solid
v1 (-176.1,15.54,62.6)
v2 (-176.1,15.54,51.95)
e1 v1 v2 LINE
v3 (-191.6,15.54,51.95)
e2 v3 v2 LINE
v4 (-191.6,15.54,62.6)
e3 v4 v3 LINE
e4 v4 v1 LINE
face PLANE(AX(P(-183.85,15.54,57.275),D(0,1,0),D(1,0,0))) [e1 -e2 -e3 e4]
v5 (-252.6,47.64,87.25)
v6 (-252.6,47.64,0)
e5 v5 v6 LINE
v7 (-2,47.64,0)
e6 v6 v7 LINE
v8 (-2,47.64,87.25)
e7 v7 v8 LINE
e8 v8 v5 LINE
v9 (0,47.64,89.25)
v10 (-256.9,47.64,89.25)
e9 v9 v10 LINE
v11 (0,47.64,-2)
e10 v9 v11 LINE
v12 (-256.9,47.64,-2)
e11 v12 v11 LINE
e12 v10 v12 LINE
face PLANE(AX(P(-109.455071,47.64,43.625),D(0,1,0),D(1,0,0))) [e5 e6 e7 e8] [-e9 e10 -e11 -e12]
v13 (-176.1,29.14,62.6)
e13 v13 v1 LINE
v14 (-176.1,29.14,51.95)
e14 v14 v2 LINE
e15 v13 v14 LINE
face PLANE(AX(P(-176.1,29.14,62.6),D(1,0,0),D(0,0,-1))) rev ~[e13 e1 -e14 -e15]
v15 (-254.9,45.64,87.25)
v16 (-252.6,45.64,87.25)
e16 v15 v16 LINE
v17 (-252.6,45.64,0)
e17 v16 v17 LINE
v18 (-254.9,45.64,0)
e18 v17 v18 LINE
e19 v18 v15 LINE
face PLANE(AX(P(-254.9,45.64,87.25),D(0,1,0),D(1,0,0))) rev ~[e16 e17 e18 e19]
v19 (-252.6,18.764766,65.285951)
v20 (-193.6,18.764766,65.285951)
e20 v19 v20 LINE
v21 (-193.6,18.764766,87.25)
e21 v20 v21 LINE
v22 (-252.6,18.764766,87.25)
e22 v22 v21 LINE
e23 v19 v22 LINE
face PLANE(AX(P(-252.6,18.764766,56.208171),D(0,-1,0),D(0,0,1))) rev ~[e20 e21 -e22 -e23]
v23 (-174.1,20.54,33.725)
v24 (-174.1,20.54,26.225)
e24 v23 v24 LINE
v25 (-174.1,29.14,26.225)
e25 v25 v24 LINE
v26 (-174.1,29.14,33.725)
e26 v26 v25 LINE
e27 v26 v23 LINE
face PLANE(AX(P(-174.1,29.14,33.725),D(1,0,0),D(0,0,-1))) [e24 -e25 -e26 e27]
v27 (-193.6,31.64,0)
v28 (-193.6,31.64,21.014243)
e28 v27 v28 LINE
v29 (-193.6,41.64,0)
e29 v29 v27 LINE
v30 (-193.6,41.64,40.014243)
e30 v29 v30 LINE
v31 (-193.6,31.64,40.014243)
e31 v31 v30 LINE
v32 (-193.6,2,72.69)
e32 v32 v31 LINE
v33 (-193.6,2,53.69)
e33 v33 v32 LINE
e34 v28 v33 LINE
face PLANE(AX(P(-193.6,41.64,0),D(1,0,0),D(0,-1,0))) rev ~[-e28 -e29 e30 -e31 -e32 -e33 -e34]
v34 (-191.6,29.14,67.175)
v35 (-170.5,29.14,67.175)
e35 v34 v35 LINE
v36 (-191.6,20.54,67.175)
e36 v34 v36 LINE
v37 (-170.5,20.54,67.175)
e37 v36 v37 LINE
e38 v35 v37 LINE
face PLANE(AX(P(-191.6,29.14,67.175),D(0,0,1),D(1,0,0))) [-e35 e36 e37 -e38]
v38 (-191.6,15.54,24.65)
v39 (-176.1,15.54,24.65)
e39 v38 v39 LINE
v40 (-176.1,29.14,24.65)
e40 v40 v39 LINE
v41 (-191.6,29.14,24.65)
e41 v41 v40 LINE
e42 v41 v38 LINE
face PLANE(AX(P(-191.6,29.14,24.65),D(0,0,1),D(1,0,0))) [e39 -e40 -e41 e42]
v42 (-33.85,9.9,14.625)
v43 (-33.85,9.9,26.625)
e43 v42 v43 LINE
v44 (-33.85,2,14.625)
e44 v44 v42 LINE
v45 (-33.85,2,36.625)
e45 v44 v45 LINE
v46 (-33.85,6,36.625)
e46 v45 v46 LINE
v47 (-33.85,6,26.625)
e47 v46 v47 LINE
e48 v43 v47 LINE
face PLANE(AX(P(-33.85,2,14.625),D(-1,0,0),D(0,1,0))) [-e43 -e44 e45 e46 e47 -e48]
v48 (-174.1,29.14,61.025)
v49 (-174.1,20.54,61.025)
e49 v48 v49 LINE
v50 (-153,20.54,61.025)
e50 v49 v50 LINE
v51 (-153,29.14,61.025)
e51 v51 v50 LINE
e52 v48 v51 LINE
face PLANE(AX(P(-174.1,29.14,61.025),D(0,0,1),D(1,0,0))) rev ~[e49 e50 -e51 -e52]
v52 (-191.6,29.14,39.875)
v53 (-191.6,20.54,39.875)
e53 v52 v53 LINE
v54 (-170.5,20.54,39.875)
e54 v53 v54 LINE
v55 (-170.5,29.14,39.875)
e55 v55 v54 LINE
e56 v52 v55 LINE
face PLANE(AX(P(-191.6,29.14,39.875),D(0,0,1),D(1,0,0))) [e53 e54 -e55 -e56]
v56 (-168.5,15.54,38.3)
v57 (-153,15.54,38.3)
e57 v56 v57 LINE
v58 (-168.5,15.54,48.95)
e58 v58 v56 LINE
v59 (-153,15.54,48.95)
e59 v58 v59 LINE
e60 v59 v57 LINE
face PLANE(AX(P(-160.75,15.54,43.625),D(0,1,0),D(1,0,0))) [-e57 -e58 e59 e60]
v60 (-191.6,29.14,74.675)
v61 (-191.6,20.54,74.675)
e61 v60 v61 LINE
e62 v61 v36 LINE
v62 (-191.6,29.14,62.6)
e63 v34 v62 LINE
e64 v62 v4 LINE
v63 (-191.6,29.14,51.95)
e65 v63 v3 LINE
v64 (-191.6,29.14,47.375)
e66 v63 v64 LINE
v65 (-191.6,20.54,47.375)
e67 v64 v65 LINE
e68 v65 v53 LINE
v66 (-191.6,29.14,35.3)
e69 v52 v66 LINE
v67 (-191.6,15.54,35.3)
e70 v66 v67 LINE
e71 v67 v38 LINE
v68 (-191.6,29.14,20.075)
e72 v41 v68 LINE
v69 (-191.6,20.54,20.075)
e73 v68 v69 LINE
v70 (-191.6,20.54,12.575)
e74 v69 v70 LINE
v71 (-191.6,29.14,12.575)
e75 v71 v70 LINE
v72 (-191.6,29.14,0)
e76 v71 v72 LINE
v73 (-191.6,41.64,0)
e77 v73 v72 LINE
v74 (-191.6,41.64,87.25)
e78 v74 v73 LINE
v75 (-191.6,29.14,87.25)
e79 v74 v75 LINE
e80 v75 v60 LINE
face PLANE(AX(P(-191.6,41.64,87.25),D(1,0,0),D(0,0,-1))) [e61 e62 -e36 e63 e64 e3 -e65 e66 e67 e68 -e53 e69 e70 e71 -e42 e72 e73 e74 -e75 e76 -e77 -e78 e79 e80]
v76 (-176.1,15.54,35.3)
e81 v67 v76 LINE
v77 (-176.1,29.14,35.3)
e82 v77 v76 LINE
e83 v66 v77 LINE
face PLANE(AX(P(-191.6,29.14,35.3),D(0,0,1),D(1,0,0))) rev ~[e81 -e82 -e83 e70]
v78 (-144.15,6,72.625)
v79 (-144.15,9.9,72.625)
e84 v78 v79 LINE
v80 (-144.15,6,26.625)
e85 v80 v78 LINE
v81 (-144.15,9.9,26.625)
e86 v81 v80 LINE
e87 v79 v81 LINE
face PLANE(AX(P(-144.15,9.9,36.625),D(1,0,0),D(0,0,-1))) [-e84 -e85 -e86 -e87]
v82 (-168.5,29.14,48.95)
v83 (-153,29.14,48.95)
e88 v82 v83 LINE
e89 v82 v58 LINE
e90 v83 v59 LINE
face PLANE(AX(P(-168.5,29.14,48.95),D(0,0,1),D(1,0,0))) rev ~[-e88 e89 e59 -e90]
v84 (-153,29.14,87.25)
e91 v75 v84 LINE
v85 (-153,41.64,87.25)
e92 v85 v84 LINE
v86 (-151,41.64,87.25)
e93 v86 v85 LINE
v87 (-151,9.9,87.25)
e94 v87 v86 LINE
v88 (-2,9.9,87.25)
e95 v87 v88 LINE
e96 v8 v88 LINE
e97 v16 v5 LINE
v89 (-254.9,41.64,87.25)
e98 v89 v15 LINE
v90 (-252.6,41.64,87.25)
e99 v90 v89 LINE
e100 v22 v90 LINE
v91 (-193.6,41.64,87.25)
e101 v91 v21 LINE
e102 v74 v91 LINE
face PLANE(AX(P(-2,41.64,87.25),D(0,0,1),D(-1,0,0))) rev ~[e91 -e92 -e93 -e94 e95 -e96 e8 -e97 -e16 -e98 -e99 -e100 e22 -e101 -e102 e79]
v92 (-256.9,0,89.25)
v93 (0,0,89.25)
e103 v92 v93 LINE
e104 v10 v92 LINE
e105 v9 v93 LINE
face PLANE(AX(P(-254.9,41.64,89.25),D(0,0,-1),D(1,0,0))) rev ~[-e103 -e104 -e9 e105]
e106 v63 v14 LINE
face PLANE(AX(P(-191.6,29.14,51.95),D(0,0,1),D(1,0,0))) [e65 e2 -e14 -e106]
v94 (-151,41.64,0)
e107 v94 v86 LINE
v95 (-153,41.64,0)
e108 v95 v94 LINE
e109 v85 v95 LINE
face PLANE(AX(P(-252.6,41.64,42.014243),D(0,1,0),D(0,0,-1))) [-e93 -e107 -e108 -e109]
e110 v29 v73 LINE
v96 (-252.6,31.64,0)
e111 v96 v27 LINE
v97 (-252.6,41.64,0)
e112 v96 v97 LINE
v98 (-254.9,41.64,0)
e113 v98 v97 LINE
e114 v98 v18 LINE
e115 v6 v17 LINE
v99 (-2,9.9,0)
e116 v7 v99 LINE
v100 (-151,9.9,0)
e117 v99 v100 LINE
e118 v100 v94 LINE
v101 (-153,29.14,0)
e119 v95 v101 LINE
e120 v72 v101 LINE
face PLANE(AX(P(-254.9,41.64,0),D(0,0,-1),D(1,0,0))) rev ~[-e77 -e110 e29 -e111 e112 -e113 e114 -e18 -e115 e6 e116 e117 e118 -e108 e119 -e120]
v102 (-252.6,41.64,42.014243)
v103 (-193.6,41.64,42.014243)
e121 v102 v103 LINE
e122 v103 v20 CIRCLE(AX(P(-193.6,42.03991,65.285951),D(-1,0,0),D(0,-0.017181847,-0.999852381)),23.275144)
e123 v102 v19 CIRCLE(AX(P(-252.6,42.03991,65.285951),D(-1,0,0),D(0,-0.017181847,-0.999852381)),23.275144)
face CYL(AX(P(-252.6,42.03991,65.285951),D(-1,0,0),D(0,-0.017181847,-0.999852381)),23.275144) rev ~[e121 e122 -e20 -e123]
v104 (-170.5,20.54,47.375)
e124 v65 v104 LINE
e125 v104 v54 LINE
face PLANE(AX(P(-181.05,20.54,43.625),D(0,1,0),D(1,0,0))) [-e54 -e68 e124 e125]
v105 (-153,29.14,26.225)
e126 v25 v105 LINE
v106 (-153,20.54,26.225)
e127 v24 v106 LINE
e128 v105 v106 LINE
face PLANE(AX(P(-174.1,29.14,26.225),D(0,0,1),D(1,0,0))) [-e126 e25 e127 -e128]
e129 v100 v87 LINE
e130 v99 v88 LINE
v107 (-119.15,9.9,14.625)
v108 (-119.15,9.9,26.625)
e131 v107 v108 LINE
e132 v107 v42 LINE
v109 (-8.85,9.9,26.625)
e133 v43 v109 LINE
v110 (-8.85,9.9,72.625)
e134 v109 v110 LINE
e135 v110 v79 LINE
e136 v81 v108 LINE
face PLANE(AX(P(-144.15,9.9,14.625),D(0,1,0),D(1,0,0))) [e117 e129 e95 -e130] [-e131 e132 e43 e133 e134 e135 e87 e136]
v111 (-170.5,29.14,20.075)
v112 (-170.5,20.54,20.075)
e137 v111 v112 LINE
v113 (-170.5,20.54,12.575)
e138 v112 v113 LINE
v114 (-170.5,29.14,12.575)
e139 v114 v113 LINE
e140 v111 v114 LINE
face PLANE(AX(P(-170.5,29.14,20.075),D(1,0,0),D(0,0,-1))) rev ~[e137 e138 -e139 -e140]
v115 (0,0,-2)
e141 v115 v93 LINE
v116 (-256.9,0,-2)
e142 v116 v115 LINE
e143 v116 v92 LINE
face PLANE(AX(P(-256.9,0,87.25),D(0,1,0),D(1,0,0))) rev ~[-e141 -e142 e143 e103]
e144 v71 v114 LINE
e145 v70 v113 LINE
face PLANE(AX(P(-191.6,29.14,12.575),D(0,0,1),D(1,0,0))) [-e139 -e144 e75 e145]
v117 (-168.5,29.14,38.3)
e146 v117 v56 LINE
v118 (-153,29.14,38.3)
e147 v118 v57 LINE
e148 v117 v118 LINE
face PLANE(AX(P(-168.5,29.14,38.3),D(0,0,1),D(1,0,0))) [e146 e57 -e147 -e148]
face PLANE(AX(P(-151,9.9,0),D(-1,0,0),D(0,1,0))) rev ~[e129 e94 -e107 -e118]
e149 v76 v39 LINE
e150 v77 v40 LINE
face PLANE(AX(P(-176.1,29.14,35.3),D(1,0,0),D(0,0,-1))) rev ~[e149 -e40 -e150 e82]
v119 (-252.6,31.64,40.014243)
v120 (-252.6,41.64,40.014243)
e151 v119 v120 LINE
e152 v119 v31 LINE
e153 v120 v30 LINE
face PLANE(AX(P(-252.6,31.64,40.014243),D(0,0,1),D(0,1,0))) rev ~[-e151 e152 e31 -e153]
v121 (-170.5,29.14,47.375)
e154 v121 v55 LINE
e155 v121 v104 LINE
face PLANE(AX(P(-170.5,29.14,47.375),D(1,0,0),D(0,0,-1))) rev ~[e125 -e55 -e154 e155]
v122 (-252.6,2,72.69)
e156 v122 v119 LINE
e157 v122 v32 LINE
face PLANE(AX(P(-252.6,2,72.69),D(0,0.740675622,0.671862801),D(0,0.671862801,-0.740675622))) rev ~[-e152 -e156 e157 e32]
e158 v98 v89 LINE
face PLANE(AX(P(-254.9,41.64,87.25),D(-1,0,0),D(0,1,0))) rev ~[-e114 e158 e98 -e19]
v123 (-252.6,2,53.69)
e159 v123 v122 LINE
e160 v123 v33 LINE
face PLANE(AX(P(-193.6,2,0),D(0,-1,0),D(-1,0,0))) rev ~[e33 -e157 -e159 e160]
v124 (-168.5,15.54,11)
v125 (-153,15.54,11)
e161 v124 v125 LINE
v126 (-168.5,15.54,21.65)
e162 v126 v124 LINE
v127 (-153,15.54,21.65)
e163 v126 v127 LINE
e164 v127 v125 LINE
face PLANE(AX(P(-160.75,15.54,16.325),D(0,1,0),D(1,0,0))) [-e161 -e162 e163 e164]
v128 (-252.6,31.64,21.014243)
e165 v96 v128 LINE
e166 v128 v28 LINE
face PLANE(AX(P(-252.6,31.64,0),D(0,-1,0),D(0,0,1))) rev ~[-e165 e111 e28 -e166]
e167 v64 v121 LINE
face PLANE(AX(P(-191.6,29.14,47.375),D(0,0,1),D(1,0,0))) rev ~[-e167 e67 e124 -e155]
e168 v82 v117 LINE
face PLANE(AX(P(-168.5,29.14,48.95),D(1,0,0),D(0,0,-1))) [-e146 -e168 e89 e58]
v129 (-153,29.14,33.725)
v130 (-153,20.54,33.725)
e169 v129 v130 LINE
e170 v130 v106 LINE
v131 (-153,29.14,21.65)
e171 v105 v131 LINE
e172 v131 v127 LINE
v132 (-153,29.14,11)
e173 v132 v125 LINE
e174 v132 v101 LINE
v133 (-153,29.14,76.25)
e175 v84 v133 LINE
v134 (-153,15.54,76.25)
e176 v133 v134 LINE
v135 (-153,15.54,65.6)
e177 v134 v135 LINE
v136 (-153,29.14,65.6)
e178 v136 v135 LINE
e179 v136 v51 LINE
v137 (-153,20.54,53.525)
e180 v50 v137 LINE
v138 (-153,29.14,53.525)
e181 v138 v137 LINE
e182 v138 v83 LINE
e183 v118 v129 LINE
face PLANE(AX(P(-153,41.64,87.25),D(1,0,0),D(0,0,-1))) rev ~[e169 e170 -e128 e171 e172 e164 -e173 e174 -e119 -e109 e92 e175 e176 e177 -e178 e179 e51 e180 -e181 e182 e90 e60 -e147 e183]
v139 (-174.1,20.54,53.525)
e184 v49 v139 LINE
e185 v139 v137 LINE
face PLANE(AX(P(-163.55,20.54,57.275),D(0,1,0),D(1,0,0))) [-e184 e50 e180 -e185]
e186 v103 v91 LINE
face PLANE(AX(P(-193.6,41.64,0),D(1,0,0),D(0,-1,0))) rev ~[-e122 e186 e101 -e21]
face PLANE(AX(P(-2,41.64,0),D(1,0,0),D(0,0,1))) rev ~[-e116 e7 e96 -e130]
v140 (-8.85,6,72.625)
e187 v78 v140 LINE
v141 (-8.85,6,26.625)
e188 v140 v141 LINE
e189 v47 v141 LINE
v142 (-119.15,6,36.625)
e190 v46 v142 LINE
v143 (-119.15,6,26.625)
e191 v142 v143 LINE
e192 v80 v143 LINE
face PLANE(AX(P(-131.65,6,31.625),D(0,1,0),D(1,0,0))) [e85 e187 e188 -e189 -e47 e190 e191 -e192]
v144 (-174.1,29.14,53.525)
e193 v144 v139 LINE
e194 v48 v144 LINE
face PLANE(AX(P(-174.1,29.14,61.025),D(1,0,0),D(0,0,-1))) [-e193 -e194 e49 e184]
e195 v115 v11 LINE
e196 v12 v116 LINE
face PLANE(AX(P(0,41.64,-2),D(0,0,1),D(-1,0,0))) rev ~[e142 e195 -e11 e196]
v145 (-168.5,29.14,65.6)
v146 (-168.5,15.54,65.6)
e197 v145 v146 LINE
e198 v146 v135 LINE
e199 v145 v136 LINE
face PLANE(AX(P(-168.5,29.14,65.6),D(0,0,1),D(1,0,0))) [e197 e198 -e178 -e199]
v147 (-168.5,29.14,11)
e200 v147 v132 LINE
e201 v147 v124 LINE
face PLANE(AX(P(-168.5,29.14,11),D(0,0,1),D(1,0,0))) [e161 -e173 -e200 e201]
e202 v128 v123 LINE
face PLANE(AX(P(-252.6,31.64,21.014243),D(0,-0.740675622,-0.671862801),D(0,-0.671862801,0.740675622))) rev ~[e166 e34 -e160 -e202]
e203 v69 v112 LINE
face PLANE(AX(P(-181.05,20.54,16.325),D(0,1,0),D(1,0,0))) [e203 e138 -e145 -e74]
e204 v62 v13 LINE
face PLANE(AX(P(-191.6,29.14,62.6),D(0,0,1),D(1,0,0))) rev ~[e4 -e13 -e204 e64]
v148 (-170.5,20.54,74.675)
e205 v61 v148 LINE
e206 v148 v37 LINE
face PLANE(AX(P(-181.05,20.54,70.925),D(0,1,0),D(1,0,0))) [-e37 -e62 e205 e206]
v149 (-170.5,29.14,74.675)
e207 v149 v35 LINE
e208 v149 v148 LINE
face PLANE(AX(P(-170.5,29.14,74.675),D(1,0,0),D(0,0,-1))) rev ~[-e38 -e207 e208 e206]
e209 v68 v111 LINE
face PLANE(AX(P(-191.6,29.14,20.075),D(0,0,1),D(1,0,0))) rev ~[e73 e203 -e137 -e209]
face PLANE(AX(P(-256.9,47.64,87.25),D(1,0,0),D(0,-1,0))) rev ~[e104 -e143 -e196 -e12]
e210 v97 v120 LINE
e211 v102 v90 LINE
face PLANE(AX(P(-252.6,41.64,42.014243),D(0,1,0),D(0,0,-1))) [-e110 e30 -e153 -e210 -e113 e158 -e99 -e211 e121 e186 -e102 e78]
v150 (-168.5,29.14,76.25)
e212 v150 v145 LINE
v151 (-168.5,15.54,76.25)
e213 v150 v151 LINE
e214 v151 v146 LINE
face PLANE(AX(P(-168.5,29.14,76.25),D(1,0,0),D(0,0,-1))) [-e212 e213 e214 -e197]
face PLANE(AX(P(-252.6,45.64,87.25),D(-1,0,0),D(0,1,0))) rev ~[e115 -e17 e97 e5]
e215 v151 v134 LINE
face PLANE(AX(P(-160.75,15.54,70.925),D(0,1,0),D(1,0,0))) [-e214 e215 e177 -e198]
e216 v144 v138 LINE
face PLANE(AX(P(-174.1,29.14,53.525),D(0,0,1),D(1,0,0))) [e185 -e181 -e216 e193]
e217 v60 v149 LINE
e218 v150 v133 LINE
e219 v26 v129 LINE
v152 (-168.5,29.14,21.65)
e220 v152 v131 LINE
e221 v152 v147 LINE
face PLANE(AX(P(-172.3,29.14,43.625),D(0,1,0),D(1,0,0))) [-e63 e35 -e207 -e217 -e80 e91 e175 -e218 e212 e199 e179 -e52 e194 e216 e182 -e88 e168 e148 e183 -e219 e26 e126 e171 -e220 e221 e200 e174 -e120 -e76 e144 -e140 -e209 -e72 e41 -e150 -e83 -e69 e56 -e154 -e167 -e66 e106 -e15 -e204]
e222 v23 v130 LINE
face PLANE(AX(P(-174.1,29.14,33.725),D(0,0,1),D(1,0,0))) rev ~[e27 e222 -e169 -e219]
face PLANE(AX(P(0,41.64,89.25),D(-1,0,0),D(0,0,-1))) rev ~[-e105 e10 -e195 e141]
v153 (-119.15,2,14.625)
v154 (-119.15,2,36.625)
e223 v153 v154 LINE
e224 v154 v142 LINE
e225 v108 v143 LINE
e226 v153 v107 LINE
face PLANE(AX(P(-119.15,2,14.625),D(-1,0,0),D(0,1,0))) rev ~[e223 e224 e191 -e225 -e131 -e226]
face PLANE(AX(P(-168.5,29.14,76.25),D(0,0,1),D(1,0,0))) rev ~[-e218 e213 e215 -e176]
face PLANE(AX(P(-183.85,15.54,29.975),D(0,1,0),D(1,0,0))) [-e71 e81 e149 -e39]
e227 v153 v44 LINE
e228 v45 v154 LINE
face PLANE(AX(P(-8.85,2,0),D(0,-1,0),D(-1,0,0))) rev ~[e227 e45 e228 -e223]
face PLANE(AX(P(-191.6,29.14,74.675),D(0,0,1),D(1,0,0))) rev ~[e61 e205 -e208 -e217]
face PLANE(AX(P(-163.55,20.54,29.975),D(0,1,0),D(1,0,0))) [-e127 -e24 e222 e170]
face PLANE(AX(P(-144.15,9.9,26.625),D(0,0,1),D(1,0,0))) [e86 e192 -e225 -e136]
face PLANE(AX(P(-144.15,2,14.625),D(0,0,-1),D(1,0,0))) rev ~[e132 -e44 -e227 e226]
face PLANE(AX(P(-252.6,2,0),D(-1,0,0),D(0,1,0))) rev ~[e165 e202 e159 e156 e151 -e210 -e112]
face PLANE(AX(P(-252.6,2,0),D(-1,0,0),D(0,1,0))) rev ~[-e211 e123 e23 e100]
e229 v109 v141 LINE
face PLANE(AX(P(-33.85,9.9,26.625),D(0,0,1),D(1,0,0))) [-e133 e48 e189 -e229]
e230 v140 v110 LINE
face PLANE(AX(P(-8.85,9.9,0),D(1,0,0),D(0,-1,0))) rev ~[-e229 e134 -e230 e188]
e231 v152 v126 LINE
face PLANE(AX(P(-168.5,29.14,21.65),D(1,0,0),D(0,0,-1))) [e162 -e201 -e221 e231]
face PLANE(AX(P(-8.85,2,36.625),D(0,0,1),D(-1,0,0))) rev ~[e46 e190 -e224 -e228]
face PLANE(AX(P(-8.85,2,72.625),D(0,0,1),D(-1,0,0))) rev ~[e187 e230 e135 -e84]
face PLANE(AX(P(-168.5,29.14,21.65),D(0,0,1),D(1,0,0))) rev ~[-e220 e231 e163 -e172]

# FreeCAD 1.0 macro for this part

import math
import FreeCAD as App
import Part
import Sketcher
from FreeCAD import Vector

doc = App.newDocument("Part")
body = doc.addObject("PartDesign::Body", "Body")

# Sketch on XY plane
sketch1 = doc.addObject("Sketcher::SketchObject", "Sketch")
body.addObject(sketch1)
sketch1.AttachmentSupport = (doc.XY_Plane, [""])
sketch1.MapMode = "FlatFace"
sketch1.addGeometry([
    Part.LineSegment(Vector(-256.9, 47.6, 0), Vector(-256.9, 0, 0)),  # 0
    Part.LineSegment(Vector(-256.9, 0, 0), Vector(0, 0, 0)),  # 1
    Part.LineSegment(Vector(0, 0, 0), Vector(0, 41.6, 0)),  # 2
    Part.LineSegment(Vector(0, 41.6, 0), Vector(-254.9, 41.6, 0)),  # 3
    Part.LineSegment(Vector(-254.9, 41.6, 0), Vector(-254.9, 45.6, 0)),  # 4
    Part.LineSegment(Vector(-254.9, 45.6, 0), Vector(-252.6, 45.6, 0)),  # 5
    Part.LineSegment(Vector(-252.6, 45.6, 0), Vector(-252.6, 47.6, 0)),  # 6
    Part.LineSegment(Vector(-252.6, 47.6, 0), Vector(-256.9, 47.6, 0)),  # 7
], False)
sketch1.addConstraint([
    Sketcher.Constraint("Coincident", 0, 2, 1, 1),
    Sketcher.Constraint("Coincident", 1, 2, 2, 1),
    Sketcher.Constraint("Coincident", 2, 2, 3, 1),
    Sketcher.Constraint("Coincident", 3, 2, 4, 1),
    Sketcher.Constraint("Coincident", 4, 2, 5, 1),
    Sketcher.Constraint("Coincident", 5, 2, 6, 1),
    Sketcher.Constraint("Coincident", 6, 2, 7, 1),
    Sketcher.Constraint("Coincident", 7, 2, 0, 1),
    Sketcher.Constraint("Vertical", 0),
    Sketcher.Constraint("Horizontal", 1),
    Sketcher.Constraint("Vertical", 2),
    Sketcher.Constraint("Horizontal", 3),
    Sketcher.Constraint("Vertical", 4),
    Sketcher.Constraint("Horizontal", 5),
    Sketcher.Constraint("Vertical", 6),
    Sketcher.Constraint("Horizontal", 7),
    Sketcher.Constraint("Coincident", 1, 2, -1, 1),
    Sketcher.Constraint("DistanceY", 4, 1, 4, 2, 4.0),
    Sketcher.Constraint("DistanceY", 6, 1, 6, 2, 2.0),
    Sketcher.Constraint("DistanceX", 1, 1, 1, 2, 256.9),
    Sketcher.Constraint("DistanceX", 3, 2, 3, 1, 254.9),
    Sketcher.Constraint("DistanceX", 5, 1, 5, 2, 2.3),
    Sketcher.Constraint("DistanceY", 0, 2, 0, 1, 47.64),
])
pad1 = doc.addObject("PartDesign::Pad", "Pad")
body.addObject(pad1)
pad1.Profile = sketch1
pad1.Length = 2
pad1.Reversed = True

# Sketch on XY plane
sketch2 = doc.addObject("Sketcher::SketchObject", "Sketch001")
body.addObject(sketch2)
sketch2.AttachmentSupport = (doc.XY_Plane, [""])
sketch2.MapMode = "FlatFace"
sketch2.addGeometry([
    Part.LineSegment(Vector(-256.9, 47.6, 0), Vector(-256.9, 0, 0)),  # 0
    Part.LineSegment(Vector(-256.9, 0, 0), Vector(0, 0, 0)),  # 1
    Part.LineSegment(Vector(0, 0, 0), Vector(0, 41.6, 0)),  # 2
    Part.LineSegment(Vector(0, 41.6, 0), Vector(-2, 41.6, 0)),  # 3
    Part.LineSegment(Vector(-2, 41.6, 0), Vector(-2, 9.9, 0)),  # 4
    Part.LineSegment(Vector(-2, 9.9, 0), Vector(-8.8, 9.9, 0)),  # 5
    Part.LineSegment(Vector(-8.8, 9.9, 0), Vector(-8.8, 2, 0)),  # 6
    Part.LineSegment(Vector(-8.8, 2, 0), Vector(-144.2, 2, 0)),  # 7
    Part.LineSegment(Vector(-144.2, 2, 0), Vector(-144.2, 9.9, 0)),  # 8
    Part.LineSegment(Vector(-144.2, 9.9, 0), Vector(-151, 9.9, 0)),  # 9
    Part.LineSegment(Vector(-151, 9.9, 0), Vector(-151, 41.6, 0)),  # 10
    Part.LineSegment(Vector(-151, 41.6, 0), Vector(-193.6, 41.6, 0)),  # 11
    Part.LineSegment(Vector(-193.6, 41.6, 0), Vector(-193.6, 2, 0)),  # 12
    Part.LineSegment(Vector(-193.6, 2, 0), Vector(-252.6, 2, 0)),  # 13
    Part.LineSegment(Vector(-252.6, 2, 0), Vector(-252.6, 41.6, 0)),  # 14
    Part.LineSegment(Vector(-252.6, 41.6, 0), Vector(-254.9, 41.6, 0)),  # 15
    Part.LineSegment(Vector(-254.9, 41.6, 0), Vector(-254.9, 45.6, 0)),  # 16
    Part.LineSegment(Vector(-254.9, 45.6, 0), Vector(-252.6, 45.6, 0)),  # 17
    Part.LineSegment(Vector(-252.6, 45.6, 0), Vector(-252.6, 47.6, 0)),  # 18
    Part.LineSegment(Vector(-252.6, 47.6, 0), Vector(-256.9, 47.6, 0)),  # 19
], False)
sketch2.addConstraint([
    Sketcher.Constraint("Coincident", 0, 2, 1, 1),
    Sketcher.Constraint("Coincident", 1, 2, 2, 1),
    Sketcher.Constraint("Coincident", 2, 2, 3, 1),
    Sketcher.Constraint("Coincident", 3, 2, 4, 1),
    Sketcher.Constraint("Coincident", 4, 2, 5, 1),
    Sketcher.Constraint("Coincident", 5, 2, 6, 1),
    Sketcher.Constraint("Coincident", 6, 2, 7, 1),
    Sketcher.Constraint("Coincident", 7, 2, 8, 1),
    Sketcher.Constraint("Coincident", 8, 2, 9, 1),
    Sketcher.Constraint("Coincident", 9, 2, 10, 1),
    Sketcher.Constraint("Coincident", 10, 2, 11, 1),
    Sketcher.Constraint("Coincident", 11, 2, 12, 1),
    Sketcher.Constraint("Coincident", 12, 2, 13, 1),
    Sketcher.Constraint("Coincident", 13, 2, 14, 1),
    Sketcher.Constraint("Coincident", 14, 2, 15, 1),
    Sketcher.Constraint("Coincident", 15, 2, 16, 1),
    Sketcher.Constraint("Coincident", 16, 2, 17, 1),
    Sketcher.Constraint("Coincident", 17, 2, 18, 1),
    Sketcher.Constraint("Coincident", 18, 2, 19, 1),
    Sketcher.Constraint("Coincident", 19, 2, 0, 1),
    Sketcher.Constraint("Vertical", 0),
    Sketcher.Constraint("Horizontal", 1),
    Sketcher.Constraint("Vertical", 2),
    Sketcher.Constraint("Horizontal", 3),
    Sketcher.Constraint("Vertical", 4),
    Sketcher.Constraint("Horizontal", 5),
    Sketcher.Constraint("Vertical", 6),
    Sketcher.Constraint("Horizontal", 7),
    Sketcher.Constraint("Vertical", 8),
    Sketcher.Constraint("Horizontal", 9),
    Sketcher.Constraint("Vertical", 10),
    Sketcher.Constraint("Horizontal", 11),
    Sketcher.Constraint("Vertical", 12),
    Sketcher.Constraint("Horizontal", 13),
    Sketcher.Constraint("Vertical", 14),
    Sketcher.Constraint("Horizontal", 15),
    Sketcher.Constraint("Vertical", 16),
    Sketcher.Constraint("Horizontal", 17),
    Sketcher.Constraint("Vertical", 18),
    Sketcher.Constraint("Horizontal", 19),
    Sketcher.Constraint("Coincident", 1, 2, -1, 1),
    Sketcher.Constraint("Horizontal", 5, 2, 8, 2),
    Sketcher.Constraint("Horizontal", 3, 2, 10, 2),
    Sketcher.Constraint("Horizontal", 7, 2, 12, 2),
    Sketcher.Constraint("Horizontal", 11, 2, 14, 2),
    Sketcher.Constraint("Vertical", 14, 2, 17, 2),
    Sketcher.Constraint("Equal", 5, 9),
    Sketcher.Constraint("Equal", 3, 18),
    Sketcher.Constraint("DistanceX", 3, 2, 3, 1, 2.0),
    Sketcher.Constraint("DistanceX", 13, 2, 13, 1, 59.0),
    Sketcher.Constraint("DistanceY", 16, 1, 16, 2, 4.0),
    Sketcher.Constraint("DistanceX", 1, 1, 1, 2, 256.9),
    Sketcher.Constraint("DistanceX", 7, 2, 7, 1, 135.3),
    Sketcher.Constraint("DistanceX", 11, 2, 11, 1, 42.6),
    Sketcher.Constraint("DistanceX", 15, 2, 15, 1, 2.3),
    Sketcher.Constraint("DistanceX", 19, 2, 19, 1, 4.3),
    Sketcher.Constraint("DistanceY", 6, 2, 6, 1, 7.9),
    Sketcher.Constraint("DistanceY", -1, 1, 6, 2, 2.0),
    Sketcher.Constraint("DistanceY", 0, 2, 0, 1, 47.64),
])
pad2 = doc.addObject("PartDesign::Pad", "Pad001")
body.addObject(pad2)
pad2.Profile = sketch2
pad2.Length = 87.25

# Sketch on XY plane
sketch3 = doc.addObject("Sketcher::SketchObject", "Sketch002")
body.addObject(sketch3)
sketch3.AttachmentSupport = (doc.XY_Plane, [""])
sketch3.MapMode = "FlatFace"
sketch3.AttachmentOffset = App.Placement(Vector(0, 0, 87.25), App.Rotation())
sketch3.addGeometry([
    Part.LineSegment(Vector(-256.9, 47.6, 0), Vector(-256.9, 0, 0)),  # 0
    Part.LineSegment(Vector(-256.9, 0, 0), Vector(0, 0, 0)),  # 1
    Part.LineSegment(Vector(0, 0, 0), Vector(0, 41.6, 0)),  # 2
    Part.LineSegment(Vector(0, 41.6, 0), Vector(-254.9, 41.6, 0)),  # 3
    Part.LineSegment(Vector(-254.9, 41.6, 0), Vector(-254.9, 45.6, 0)),  # 4
    Part.LineSegment(Vector(-254.9, 45.6, 0), Vector(-252.6, 45.6, 0)),  # 5
    Part.LineSegment(Vector(-252.6, 45.6, 0), Vector(-252.6, 47.6, 0)),  # 6
    Part.LineSegment(Vector(-252.6, 47.6, 0), Vector(-256.9, 47.6, 0)),  # 7
], False)
sketch3.addConstraint([
    Sketcher.Constraint("Coincident", 0, 2, 1, 1),
    Sketcher.Constraint("Coincident", 1, 2, 2, 1),
    Sketcher.Constraint("Coincident", 2, 2, 3, 1),
    Sketcher.Constraint("Coincident", 3, 2, 4, 1),
    Sketcher.Constraint("Coincident", 4, 2, 5, 1),
    Sketcher.Constraint("Coincident", 5, 2, 6, 1),
    Sketcher.Constraint("Coincident", 6, 2, 7, 1),
    Sketcher.Constraint("Coincident", 7, 2, 0, 1),
    Sketcher.Constraint("Vertical", 0),
    Sketcher.Constraint("Horizontal", 1),
    Sketcher.Constraint("Vertical", 2),
    Sketcher.Constraint("Horizontal", 3),
    Sketcher.Constraint("Vertical", 4),
    Sketcher.Constraint("Horizontal", 5),
    Sketcher.Constraint("Vertical", 6),
    Sketcher.Constraint("Horizontal", 7),
    Sketcher.Constraint("Coincident", 1, 2, -1, 1),
    Sketcher.Constraint("DistanceY", 4, 1, 4, 2, 4.0),
    Sketcher.Constraint("DistanceY", 6, 1, 6, 2, 2.0),
    Sketcher.Constraint("DistanceX", 1, 1, 1, 2, 256.9),
    Sketcher.Constraint("DistanceX", 3, 2, 3, 1, 254.9),
    Sketcher.Constraint("DistanceX", 5, 1, 5, 2, 2.3),
    Sketcher.Constraint("DistanceY", 0, 2, 0, 1, 47.64),
])
pad3 = doc.addObject("PartDesign::Pad", "Pad002")
body.addObject(pad3)
pad3.Profile = sketch3
pad3.Length = 2

# Sketch on YZ plane
sketch4 = doc.addObject("Sketcher::SketchObject", "Sketch003")
body.addObject(sketch4)
sketch4.AttachmentSupport = (doc.YZ_Plane, [""])
sketch4.MapMode = "FlatFace"
sketch4.AttachmentOffset = App.Placement(Vector(0, 0, -252.6), App.Rotation())
sketch4.addGeometry([
    Part.LineSegment(Vector(2, 72.7, 0), Vector(31.6, 40, 0)),  # 0
    Part.LineSegment(Vector(31.6, 40, 0), Vector(31.6, 42, 0)),  # 1
    Part.LineSegment(Vector(31.6, 42, 0), Vector(18.8, 56.2, 0)),  # 2
    Part.LineSegment(Vector(18.8, 56.2, 0), Vector(18.8, 87.2, 0)),  # 3
    Part.LineSegment(Vector(18.8, 87.2, 0), Vector(2, 87.2, 0)),  # 4
    Part.LineSegment(Vector(2, 87.2, 0), Vector(2, 72.7, 0)),  # 5
    Part.LineSegment(Vector(2, 0, 0), Vector(31.6, 0, 0)),  # 6
    Part.LineSegment(Vector(31.6, 0, 0), Vector(31.6, 21, 0)),  # 7
    Part.LineSegment(Vector(31.6, 21, 0), Vector(2, 53.7, 0)),  # 8
    Part.LineSegment(Vector(2, 53.7, 0), Vector(2, 0, 0)),  # 9
], False)
sketch4.addConstraint([
    Sketcher.Constraint("Coincident", 0, 2, 1, 1),
    Sketcher.Constraint("Coincident", 1, 2, 2, 1),
    Sketcher.Constraint("Coincident", 2, 2, 3, 1),
    Sketcher.Constraint("Coincident", 3, 2, 4, 1),
    Sketcher.Constraint("Coincident", 4, 2, 5, 1),
    Sketcher.Constraint("Coincident", 5, 2, 0, 1),
    Sketcher.Constraint("Coincident", 6, 2, 7, 1),
    Sketcher.Constraint("Coincident", 7, 2, 8, 1),
    Sketcher.Constraint("Coincident", 8, 2, 9, 1),
    Sketcher.Constraint("Coincident", 9, 2, 6, 1),
    Sketcher.Constraint("Vertical", 1),
    Sketcher.Constraint("Vertical", 3),
    Sketcher.Constraint("Horizontal", 4),
    Sketcher.Constraint("Vertical", 5),
    Sketcher.Constraint("Horizontal", 6),
    Sketcher.Constraint("Vertical", 7),
    Sketcher.Constraint("Vertical", 9),
    Sketcher.Constraint("PointOnObject", 6, 2, -1),
    Sketcher.Constraint("Parallel", 0, 2),
    Sketcher.Constraint("Parallel", 2, 8),
    Sketcher.Constraint("Vertical", 1, 2, 6, 2),
    Sketcher.Constraint("Vertical", 5, 2, 8, 2),
    Sketcher.Constraint("DistanceY", 1, 1, 1, 2, 2.0),
    Sketcher.Constraint("DistanceX", -1, 1, 4, 2, 2.0),
    Sketcher.Constraint("DistanceY", 7, 2, 0, 2, 19.0),
    Sketcher.Constraint("DistanceX", 6, 1, 6, 2, 29.64),
    Sketcher.Constraint("DistanceY", 5, 2, 5, 1, 14.56),
    Sketcher.Constraint("DistanceY", 9, 2, 9, 1, 53.69),
    Sketcher.Constraint("DistanceY", 3, 1, 3, 2, 31.041829),
    Sketcher.Constraint("Distance", 0, 44.11615),
])
pad4 = doc.addObject("PartDesign::Pad", "Pad003")
body.addObject(pad4)
pad4.Profile = sketch4
pad4.Length = 59

# Sketch on YZ plane
sketch5 = doc.addObject("Sketcher::SketchObject", "Sketch004")
body.addObject(sketch5)
sketch5.AttachmentSupport = (doc.YZ_Plane, [""])
sketch5.MapMode = "FlatFace"
sketch5.AttachmentOffset = App.Placement(Vector(0, 0, -252.6), App.Rotation())
sketch5.addGeometry([
    Part.LineSegment(Vector(41.6, 42, 0), Vector(31.6, 42, 0)),
    Part.LineSegment(Vector(31.6, 42, 0), Vector(31.6, 40, 0)),
    Part.LineSegment(Vector(31.6, 40, 0), Vector(41.6, 40, 0)),
    Part.LineSegment(Vector(41.6, 40, 0), Vector(41.6, 42, 0)),
], False)
sketch5.addConstraint([
    Sketcher.Constraint("Coincident", 0, 2, 1, 1),
    Sketcher.Constraint("Coincident", 1, 2, 2, 1),
    Sketcher.Constraint("Coincident", 2, 2, 3, 1),
    Sketcher.Constraint("Coincident", 3, 2, 0, 1),
    Sketcher.Constraint("Horizontal", 0),
    Sketcher.Constraint("Vertical", 1),
    Sketcher.Constraint("Horizontal", 2),
    Sketcher.Constraint("Vertical", 3),
    Sketcher.Constraint("DistanceX", 0, 2, 0, 1, 10.0),
    Sketcher.Constraint("DistanceY", 1, 2, 1, 1, 2.0),
    Sketcher.Constraint("DistanceX", -1, 1, 0, 2, 31.64),
    Sketcher.Constraint("DistanceY", -1, 1, 0, 2, 42.014243),
])
pad5 = doc.addObject("PartDesign::Pad", "Pad004")
body.addObject(pad5)
pad5.Profile = sketch5
pad5.Length = 59

# Sketch on YZ plane
sketch6 = doc.addObject("Sketcher::SketchObject", "Sketch005")
body.addObject(sketch6)
sketch6.AttachmentSupport = (doc.YZ_Plane, [""])
sketch6.MapMode = "FlatFace"
sketch6.AttachmentOffset = App.Placement(Vector(0, 0, -252.6), App.Rotation())
sketch6.addGeometry([
    Part.LineSegment(Vector(32, 42, 0), Vector(42, 42, 0)),
    Part.ArcOfCircle(Part.Circle(Vector(42, 65, 0), Vector(0, 0, 1), 23), math.radians(-180), math.radians(-91)),
    Part.LineSegment(Vector(19, 65, 0), Vector(19, 56, 0)),
    Part.LineSegment(Vector(19, 56, 0), Vector(32, 42, 0)),
], False)
sketch6.addConstraint([
    Sketcher.Constraint("Coincident", 0, 2, 1, 2),
    Sketcher.Constraint("Tangent", 1, 1, 2, 1),
    Sketcher.Constraint("Coincident", 2, 2, 3, 1),
    Sketcher.Constraint("Coincident", 3, 2, 0, 1),
    Sketcher.Constraint("Horizontal", 0),
    Sketcher.Constraint("Vertical", 2),
    Sketcher.Constraint("DistanceX", 0, 1, 0, 2, 10.0),
    Sketcher.Constraint("DistanceX", -1, 1, 0, 2, 41.64),
    Sketcher.Constraint("Radius", 1, 23.275144),
    Sketcher.Constraint("DistanceY", 2, 2, 2, 1, 9.077781),
    Sketcher.Constraint("DistanceX", -1, 1, 1, 3, 42.03991),
    Sketcher.Constraint("DistanceY", -1, 1, 1, 3, 65.285951),
])
pad6 = doc.addObject("PartDesign::Pad", "Pad005")
body.addObject(pad6)
pad6.Profile = sketch6
pad6.Length = 59

# Sketch on XZ plane
sketch7 = doc.addObject("Sketcher::SketchObject", "Sketch006")
body.addObject(sketch7)
sketch7.AttachmentSupport = (doc.XZ_Plane, [""])
sketch7.MapMode = "FlatFace"
sketch7.AttachmentOffset = App.Placement(Vector(0, 0, -41.64), App.Rotation())
sketch7.addGeometry([
    Part.LineSegment(Vector(0, 89.2, 0), Vector(0, -2, 0)),  # 0
    Part.LineSegment(Vector(0, -2, 0), Vector(-254.9, -2, 0)),  # 1
    Part.LineSegment(Vector(-254.9, -2, 0), Vector(-254.9, 0, 0)),  # 2
    Part.LineSegment(Vector(-254.9, 0, 0), Vector(-2, 0, 0)),  # 3
    Part.LineSegment(Vector(-2, 0, 0), Vector(-2, 87.2, 0)),  # 4
    Part.LineSegment(Vector(-2, 87.2, 0), Vector(-254.9, 87.2, 0)),  # 5
    Part.LineSegment(Vector(-254.9, 87.2, 0), Vector(-254.9, 89.2, 0)),  # 6
    Part.LineSegment(Vector(-254.9, 89.2, 0), Vector(0, 89.2, 0)),  # 7
], False)
sketch7.addConstraint([
    Sketcher.Constraint("Coincident", 0, 2, 1, 1),
    Sketcher.Constraint("Coincident", 1, 2, 2, 1),
    Sketcher.Constraint("Coincident", 2, 2, 3, 1),
    Sketcher.Constraint("Coincident", 3, 2, 4, 1),
    Sketcher.Constraint("Coincident", 4, 2, 5, 1),
    Sketcher.Constraint("Coincident", 5, 2, 6, 1),
    Sketcher.Constraint("Coincident", 6, 2, 7, 1),
    Sketcher.Constraint("Coincident", 7, 2, 0, 1),
    Sketcher.Constraint("Vertical", 0),
    Sketcher.Constraint("Horizontal", 1),
    Sketcher.Constraint("Vertical", 2),
    Sketcher.Constraint("Horizontal", 3),
    Sketcher.Constraint("Vertical", 4),
    Sketcher.Constraint("Horizontal", 5),
    Sketcher.Constraint("Vertical", 6),
    Sketcher.Constraint("Horizontal", 7),
    Sketcher.Constraint("PointOnObject", 0, 2, -2),
    Sketcher.Constraint("PointOnObject", 2, 2, -1),
    Sketcher.Constraint("Vertical", 2, 2, 5, 2),
    Sketcher.Constraint("Equal", 2, 6),
    Sketcher.Constraint("DistanceY", 2, 1, 2, 2, 2.0),
    Sketcher.Constraint("DistanceX", 1, 2, 1, 1, 254.9),
    Sketcher.Constraint("DistanceX", 3, 1, 3, 2, 252.9),
    Sketcher.Constraint("DistanceY", 0, 2, 0, 1, 91.25),
])
pad7 = doc.addObject("PartDesign::Pad", "Pad006")
body.addObject(pad7)
pad7.Profile = sketch7
pad7.Length = 6
pad7.Reversed = True

# Sketch on XZ plane
sketch8 = doc.addObject("Sketcher::SketchObject", "Sketch007")
body.addObject(sketch8)
sketch8.AttachmentSupport = (doc.XZ_Plane, [""])
sketch8.MapMode = "FlatFace"
sketch8.AttachmentOffset = App.Placement(Vector(0, 0, -41.64), App.Rotation())
sketch8.addGeometry([
    Part.LineSegment(Vector(-192, 0, 0), Vector(-192, 87, 0)),
    Part.LineSegment(Vector(-192, 87, 0), Vector(-153, 87, 0)),
    Part.LineSegment(Vector(-153, 87, 0), Vector(-153, 0, 0)),
    Part.LineSegment(Vector(-153, 0, 0), Vector(-192, 0, 0)),
], False)
sketch8.addConstraint([
    Sketcher.Constraint("Coincident", 0, 2, 1, 1),
    Sketcher.Constraint("Coincident", 1, 2, 2, 1),
    Sketcher.Constraint("Coincident", 2, 2, 3, 1),
    Sketcher.Constraint("Coincident", 3, 2, 0, 1),
    Sketcher.Constraint("Vertical", 0),
    Sketcher.Constraint("Horizontal", 1),
    Sketcher.Constraint("Vertical", 2),
    Sketcher.Constraint("Horizontal", 3),
    Sketcher.Constraint("PointOnObject", 2, 2, -1),
    Sketcher.Constraint("DistanceX", 1, 1, 1, 2, 38.6),
    Sketcher.Constraint("DistanceX", 1, 2, -1, 1, 153.0),
    Sketcher.Constraint("DistanceY", 0, 1, 0, 2, 87.25),
])
pocket1 = doc.addObject("PartDesign::Pocket", "Pocket")
body.addObject(pocket1)
pocket1.Profile = sketch8
pocket1.Length = 12.5
pocket1.Reversed = True

# Sketch on XZ plane
sketch9 = doc.addObject("Sketcher::SketchObject", "Sketch008")
body.addObject(sketch9)
sketch9.AttachmentSupport = (doc.XZ_Plane, [""])
sketch9.MapMode = "FlatFace"
sketch9.AttachmentOffset = App.Placement(Vector(0, 0, -29.14), App.Rotation())
sketch9.addGeometry([
    Part.LineSegment(Vector(-168, 11, 0), Vector(-168, 22, 0)),  # 0
    Part.LineSegment(Vector(-168, 22, 0), Vector(-153, 22, 0)),  # 1
    Part.LineSegment(Vector(-153, 22, 0), Vector(-153, 11, 0)),  # 2
    Part.LineSegment(Vector(-153, 11, 0), Vector(-168, 11, 0)),  # 3
    Part.LineSegment(Vector(-192, 25, 0), Vector(-192, 35, 0)),  # 4
    Part.LineSegment(Vector(-192, 35, 0), Vector(-176, 35, 0)),  # 5
    Part.LineSegment(Vector(-176, 35, 0), Vector(-176, 25, 0)),  # 6
    Part.LineSegment(Vector(-176, 25, 0), Vector(-192, 25, 0)),  # 7
    Part.LineSegment(Vector(-168, 38, 0), Vector(-168, 49, 0)),  # 8
    Part.LineSegment(Vector(-168, 49, 0), Vector(-153, 49, 0)),  # 9
    Part.LineSegment(Vector(-153, 49, 0), Vector(-153, 38, 0)),  # 10
    Part.LineSegment(Vector(-153, 38, 0), Vector(-168, 38, 0)),  # 11
    Part.LineSegment(Vector(-192, 52, 0), Vector(-192, 63, 0)),  # 12
    Part.LineSegment(Vector(-192, 63, 0), Vector(-176, 63, 0)),  # 13
    Part.LineSegment(Vector(-176, 63, 0), Vector(-176, 52, 0)),  # 14
    Part.LineSegment(Vector(-176, 52, 0), Vector(-192, 52, 0)),  # 15
    Part.LineSegment(Vector(-168, 66, 0), Vector(-168, 76, 0)),  # 16
    Part.LineSegment(Vector(-168, 76, 0), Vector(-153, 76, 0)),  # 17
    Part.LineSegment(Vector(-153, 76, 0), Vector(-153, 66, 0)),  # 18
    Part.LineSegment(Vector(-153, 66, 0), Vector(-168, 66, 0)),  # 19
], False)
sketch9.addConstraint([
    Sketcher.Constraint("Coincident", 0, 2, 1, 1),
    Sketcher.Constraint("Coincident", 1, 2, 2, 1),
    Sketcher.Constraint("Coincident", 2, 2, 3, 1),
    Sketcher.Constraint("Coincident", 3, 2, 0, 1),
    Sketcher.Constraint("Coincident", 4, 2, 5, 1),
    Sketcher.Constraint("Coincident", 5, 2, 6, 1),
    Sketcher.Constraint("Coincident", 6, 2, 7, 1),
    Sketcher.Constraint("Coincident", 7, 2, 4, 1),
    Sketcher.Constraint("Coincident", 8, 2, 9, 1),
    Sketcher.Constraint("Coincident", 9, 2, 10, 1),
    Sketcher.Constraint("Coincident", 10, 2, 11, 1),
    Sketcher.Constraint("Coincident", 11, 2, 8, 1),
    Sketcher.Constraint("Coincident", 12, 2, 13, 1),
    Sketcher.Constraint("Coincident", 13, 2, 14, 1),
    Sketcher.Constraint("Coincident", 14, 2, 15, 1),
    Sketcher.Constraint("Coincident", 15, 2, 12, 1),
    Sketcher.Constraint("Coincident", 16, 2, 17, 1),
    Sketcher.Constraint("Coincident", 17, 2, 18, 1),
    Sketcher.Constraint("Coincident", 18, 2, 19, 1),
    Sketcher.Constraint("Coincident", 19, 2, 16, 1),
    Sketcher.Constraint("Vertical", 0),
    Sketcher.Constraint("Horizontal", 1),
    Sketcher.Constraint("Vertical", 2),
    Sketcher.Constraint("Horizontal", 3),
    Sketcher.Constraint("Vertical", 4),
    Sketcher.Constraint("Horizontal", 5),
    Sketcher.Constraint("Vertical", 6),
    Sketcher.Constraint("Horizontal", 7),
    Sketcher.Constraint("Vertical", 8),
    Sketcher.Constraint("Horizontal", 9),
    Sketcher.Constraint("Vertical", 10),
    Sketcher.Constraint("Horizontal", 11),
    Sketcher.Constraint("Vertical", 12),
    Sketcher.Constraint("Horizontal", 13),
    Sketcher.Constraint("Vertical", 14),
    Sketcher.Constraint("Horizontal", 15),
    Sketcher.Constraint("Vertical", 16),
    Sketcher.Constraint("Horizontal", 17),
    Sketcher.Constraint("Vertical", 18),
    Sketcher.Constraint("Horizontal", 19),
    Sketcher.Constraint("Vertical", 3, 2, 8, 2),
    Sketcher.Constraint("Vertical", 2, 2, 9, 2),
    Sketcher.Constraint("Vertical", 7, 2, 12, 2),
    Sketcher.Constraint("Vertical", 6, 2, 13, 2),
    Sketcher.Constraint("Vertical", 11, 2, 16, 2),
    Sketcher.Constraint("Vertical", 10, 2, 17, 2),
    Sketcher.Constraint("Equal", 3, 5),
    Sketcher.Constraint("Equal", 2, 4),
    Sketcher.Constraint("Equal", 6, 8),
    Sketcher.Constraint("Equal", 10, 12),
    Sketcher.Constraint("Equal", 14, 16),
    Sketcher.Constraint("DistanceX", 1, 1, 1, 2, 15.5),
    Sketcher.Constraint("DistanceX", 1, 2, -1, 1, 153.0),
    Sketcher.Constraint("DistanceY", -1, 1, 2, 2, 11.0),
    Sketcher.Constraint("DistanceY", 0, 2, 6, 2, 3.0),
    Sketcher.Constraint("DistanceY", 5, 2, 10, 2, 3.0),
    Sketcher.Constraint("DistanceY", 8, 2, 14, 2, 3.0),
    Sketcher.Constraint("DistanceY", 13, 2, 18, 2, 3.0),
    Sketcher.Constraint("DistanceY", 0, 1, 0, 2, 10.65),
    Sketcher.Constraint("DistanceX", 4, 2, -1, 1, 191.6),
])
pocket2 = doc.addObject("PartDesign::Pocket", "Pocket001")
body.addObject(pocket2)
pocket2.Profile = sketch9
pocket2.Length = 13.6
pocket2.Reversed = True

# Sketch on XZ plane
sketch10 = doc.addObject("Sketcher::SketchObject", "Sketch009")
body.addObject(sketch10)
sketch10.AttachmentSupport = (doc.XZ_Plane, [""])
sketch10.MapMode = "FlatFace"
sketch10.AttachmentOffset = App.Placement(Vector(0, 0, -29.14), App.Rotation())
sketch10.addGeometry([
    Part.LineSegment(Vector(-192, 13, 0), Vector(-192, 20, 0)),  # 0
    Part.LineSegment(Vector(-192, 20, 0), Vector(-170, 20, 0)),  # 1
    Part.LineSegment(Vector(-170, 20, 0), Vector(-170, 13, 0)),  # 2
    Part.LineSegment(Vector(-170, 13, 0), Vector(-192, 13, 0)),  # 3
    Part.LineSegment(Vector(-174, 26, 0), Vector(-174, 34, 0)),  # 4
    Part.LineSegment(Vector(-174, 34, 0), Vector(-153, 34, 0)),  # 5
    Part.LineSegment(Vector(-153, 34, 0), Vector(-153, 26, 0)),  # 6
    Part.LineSegment(Vector(-153, 26, 0), Vector(-174, 26, 0)),  # 7
    Part.LineSegment(Vector(-192, 40, 0), Vector(-192, 47, 0)),  # 8
    Part.LineSegment(Vector(-192, 47, 0), Vector(-170, 47, 0)),  # 9
    Part.LineSegment(Vector(-170, 47, 0), Vector(-170, 40, 0)),  # 10
    Part.LineSegment(Vector(-170, 40, 0), Vector(-192, 40, 0)),  # 11
    Part.LineSegment(Vector(-174, 54, 0), Vector(-174, 61, 0)),  # 12
    Part.LineSegment(Vector(-174, 61, 0), Vector(-153, 61, 0)),  # 13
    Part.LineSegment(Vector(-153, 61, 0), Vector(-153, 54, 0)),  # 14
    Part.LineSegment(Vector(-153, 54, 0), Vector(-174, 54, 0)),  # 15
    Part.LineSegment(Vector(-192, 67, 0), Vector(-192, 75, 0)),  # 16
    Part.LineSegment(Vector(-192, 75, 0), Vector(-170, 75, 0)),  # 17
    Part.LineSegment(Vector(-170, 75, 0), Vector(-170, 67, 0)),  # 18
    Part.LineSegment(Vector(-170, 67, 0), Vector(-192, 67, 0)),  # 19
], False)
sketch10.addConstraint([
    Sketcher.Constraint("Coincident", 0, 2, 1, 1),
    Sketcher.Constraint("Coincident", 1, 2, 2, 1),
    Sketcher.Constraint("Coincident", 2, 2, 3, 1),
    Sketcher.Constraint("Coincident", 3, 2, 0, 1),
    Sketcher.Constraint("Coincident", 4, 2, 5, 1),
    Sketcher.Constraint("Coincident", 5, 2, 6, 1),
    Sketcher.Constraint("Coincident", 6, 2, 7, 1),
    Sketcher.Constraint("Coincident", 7, 2, 4, 1),
    Sketcher.Constraint("Coincident", 8, 2, 9, 1),
    Sketcher.Constraint("Coincident", 9, 2, 10, 1),
    Sketcher.Constraint("Coincident", 10, 2, 11, 1),
    Sketcher.Constraint("Coincident", 11, 2, 8, 1),
    Sketcher.Constraint("Coincident", 12, 2, 13, 1),
    Sketcher.Constraint("Coincident", 13, 2, 14, 1),
    Sketcher.Constraint("Coincident", 14, 2, 15, 1),
    Sketcher.Constraint("Coincident", 15, 2, 12, 1),
    Sketcher.Constraint("Coincident", 16, 2, 17, 1),
    Sketcher.Constraint("Coincident", 17, 2, 18, 1),
    Sketcher.Constraint("Coincident", 18, 2, 19, 1),
    Sketcher.Constraint("Coincident", 19, 2, 16, 1),
    Sketcher.Constraint("Vertical", 0),
    Sketcher.Constraint("Horizontal", 1),
    Sketcher.Constraint("Vertical", 2),
    Sketcher.Constraint("Horizontal", 3),
    Sketcher.Constraint("Vertical", 4),
    Sketcher.Constraint("Horizontal", 5),
    Sketcher.Constraint("Vertical", 6),
    Sketcher.Constraint("Horizontal", 7),
    Sketcher.Constraint("Vertical", 8),
    Sketcher.Constraint("Horizontal", 9),
    Sketcher.Constraint("Vertical", 10),
    Sketcher.Constraint("Horizontal", 11),
    Sketcher.Constraint("Vertical", 12),
    Sketcher.Constraint("Horizontal", 13),
    Sketcher.Constraint("Vertical", 14),
    Sketcher.Constraint("Horizontal", 15),
    Sketcher.Constraint("Vertical", 16),
    Sketcher.Constraint("Horizontal", 17),
    Sketcher.Constraint("Vertical", 18),
    Sketcher.Constraint("Horizontal", 19),
    Sketcher.Constraint("Vertical", 3, 2, 8, 2),
    Sketcher.Constraint("Vertical", 2, 2, 9, 2),
    Sketcher.Constraint("Vertical", 7, 2, 12, 2),
    Sketcher.Constraint("Vertical", 6, 2, 13, 2),
    Sketcher.Constraint("Vertical", 11, 2, 16, 2),
    Sketcher.Constraint("Vertical", 10, 2, 17, 2),
    Sketcher.Constraint("Equal", 3, 5),
    Sketcher.Constraint("Equal", 2, 4),
    Sketcher.Constraint("Equal", 6, 8),
    Sketcher.Constraint("Equal", 10, 12),
    Sketcher.Constraint("Equal", 14, 16),
    Sketcher.Constraint("DistanceX", 1, 1, 1, 2, 21.1),
    Sketcher.Constraint("DistanceY", 0, 1, 0, 2, 7.5),
    Sketcher.Constraint("DistanceX", 5, 2, -1, 1, 153.0),
    Sketcher.Constraint("DistanceX", 0, 2, -1, 1, 191.6),
    Sketcher.Constraint("DistanceY", 0, 2, 8, 2, 27.3),
    Sketcher.Constraint("DistanceY", 4, 2, 12, 2, 27.3),
    Sketcher.Constraint("DistanceY", 8, 2, 16, 2, 27.3),
    Sketcher.Constraint("DistanceY", 1, 2, 4, 2, 13.65),
    Sketcher.Constraint("DistanceY", -1, 1, 0, 2, 20.075),
])
pocket3 = doc.addObject("PartDesign::Pocket", "Pocket002")
body.addObject(pocket3)
pocket3.Profile = sketch10
pocket3.Length = 8.6
pocket3.Reversed = True

# Sketch on XZ plane
sketch11 = doc.addObject("Sketcher::SketchObject", "Sketch010")
body.addObject(sketch11)
sketch11.AttachmentSupport = (doc.XZ_Plane, [""])
sketch11.MapMode = "FlatFace"
sketch11.AttachmentOffset = App.Placement(Vector(0, 0, -2), App.Rotation())
sketch11.addGeometry([
    Part.LineSegment(Vector(-144, 0, 0), Vector(-144, 15, 0)),  # 0
    Part.LineSegment(Vector(-144, 15, 0), Vector(-9, 15, 0)),  # 1
    Part.LineSegment(Vector(-9, 15, 0), Vector(-9, 0, 0)),  # 2
    Part.LineSegment(Vector(-9, 0, 0), Vector(-144, 0, 0)),  # 3
    Part.LineSegment(Vector(-9, 87, 0), Vector(-9, 73, 0)),  # 4
    Part.LineSegment(Vector(-9, 73, 0), Vector(-144, 73, 0)),  # 5
    Part.LineSegment(Vector(-144, 73, 0), Vector(-144, 87, 0)),  # 6
    Part.LineSegment(Vector(-144, 87, 0), Vector(-9, 87, 0)),  # 7
], False)
sketch11.addConstraint([
    Sketcher.Constraint("Coincident", 0, 2, 1, 1),
    Sketcher.Constraint("Coincident", 1, 2, 2, 1),
    Sketcher.Constraint("Coincident", 2, 2, 3, 1),
    Sketcher.Constraint("Coincident", 3, 2, 0, 1),
    Sketcher.Constraint("Coincident", 4, 2, 5, 1),
    Sketcher.Constraint("Coincident", 5, 2, 6, 1),
    Sketcher.Constraint("Coincident", 6, 2, 7, 1),
    Sketcher.Constraint("Coincident", 7, 2, 4, 1),
    Sketcher.Constraint("Vertical", 0),
    Sketcher.Constraint("Horizontal", 1),
    Sketcher.Constraint("Vertical", 2),
    Sketcher.Constraint("Horizontal", 3),
    Sketcher.Constraint("Vertical", 4),
    Sketcher.Constraint("Horizontal", 5),
    Sketcher.Constraint("Vertical", 6),
    Sketcher.Constraint("Horizontal", 7),
    Sketcher.Constraint("PointOnObject", 2, 2, -1),
    Sketcher.Constraint("Vertical", 2, 2, 4, 2),
    Sketcher.Constraint("Vertical", 3, 2, 5, 2),
    Sketcher.Constraint("Equal", 2, 4),
    Sketcher.Constraint("DistanceX", 1, 1, 1, 2, 135.3),
    Sketcher.Constraint("DistanceY", 1, 2, 4, 2, 58.0),
    Sketcher.Constraint("DistanceY", 0, 1, 0, 2, 14.625),
    Sketcher.Constraint("DistanceX", 0, 2, -1, 1, 144.15),
])
pad8 = doc.addObject("PartDesign::Pad", "Pad007")
body.addObject(pad8)
pad8.Profile = sketch11
pad8.Length = 7.9
pad8.Reversed = True

# Sketch on XZ plane
sketch12 = doc.addObject("Sketcher::SketchObject", "Sketch011")
body.addObject(sketch12)
sketch12.AttachmentSupport = (doc.XZ_Plane, [""])
sketch12.MapMode = "FlatFace"
sketch12.AttachmentOffset = App.Placement(Vector(0, 0, -2), App.Rotation())
sketch12.addGeometry([
    Part.LineSegment(Vector(-9, 37, 0), Vector(-144, 37, 0)),
    Part.LineSegment(Vector(-144, 37, 0), Vector(-144, 73, 0)),
    Part.LineSegment(Vector(-144, 73, 0), Vector(-9, 73, 0)),
    Part.LineSegment(Vector(-9, 73, 0), Vector(-9, 37, 0)),
], False)
sketch12.addConstraint([
    Sketcher.Constraint("Coincident", 0, 2, 1, 1),
    Sketcher.Constraint("Coincident", 1, 2, 2, 1),
    Sketcher.Constraint("Coincident", 2, 2, 3, 1),
    Sketcher.Constraint("Coincident", 3, 2, 0, 1),
    Sketcher.Constraint("Horizontal", 0),
    Sketcher.Constraint("Vertical", 1),
    Sketcher.Constraint("Horizontal", 2),
    Sketcher.Constraint("Vertical", 3),
    Sketcher.Constraint("DistanceY", 1, 1, 1, 2, 36.0),
    Sketcher.Constraint("DistanceX", 0, 2, 0, 1, 135.3),
    Sketcher.Constraint("DistanceX", 0, 2, -1, 1, 144.15),
    Sketcher.Constraint("DistanceY", -1, 1, 0, 2, 36.625),
])
pad9 = doc.addObject("PartDesign::Pad", "Pad008")
body.addObject(pad9)
pad9.Profile = sketch12
pad9.Length = 4
pad9.Reversed = True

# Sketch on XY plane
sketch13 = doc.addObject("Sketcher::SketchObject", "Sketch012")
body.addObject(sketch13)
sketch13.AttachmentSupport = (doc.XY_Plane, [""])
sketch13.MapMode = "FlatFace"
sketch13.AttachmentOffset = App.Placement(Vector(0, 0, 14.625), App.Rotation())
sketch13.addGeometry([
    Part.LineSegment(Vector(-144, 10, 0), Vector(-144, 2, 0)),  # 0
    Part.LineSegment(Vector(-144, 2, 0), Vector(-119, 2, 0)),  # 1
    Part.LineSegment(Vector(-119, 2, 0), Vector(-119, 10, 0)),  # 2
    Part.LineSegment(Vector(-119, 10, 0), Vector(-144, 10, 0)),  # 3
    Part.LineSegment(Vector(-34, 10, 0), Vector(-34, 2, 0)),  # 4
    Part.LineSegment(Vector(-34, 2, 0), Vector(-9, 2, 0)),  # 5
    Part.LineSegment(Vector(-9, 2, 0), Vector(-9, 10, 0)),  # 6
    Part.LineSegment(Vector(-9, 10, 0), Vector(-34, 10, 0)),  # 7
], False)
sketch13.addConstraint([
    Sketcher.Constraint("Coincident", 0, 2, 1, 1),
    Sketcher.Constraint("Coincident", 1, 2, 2, 1),
    Sketcher.Constraint("Coincident", 2, 2, 3, 1),
    Sketcher.Constraint("Coincident", 3, 2, 0, 1),
    Sketcher.Constraint("Coincident", 4, 2, 5, 1),
    Sketcher.Constraint("Coincident", 5, 2, 6, 1),
    Sketcher.Constraint("Coincident", 6, 2, 7, 1),
    Sketcher.Constraint("Coincident", 7, 2, 4, 1),
    Sketcher.Constraint("Vertical", 0),
    Sketcher.Constraint("Horizontal", 1),
    Sketcher.Constraint("Vertical", 2),
    Sketcher.Constraint("Horizontal", 3),
    Sketcher.Constraint("Vertical", 4),
    Sketcher.Constraint("Horizontal", 5),
    Sketcher.Constraint("Vertical", 6),
    Sketcher.Constraint("Horizontal", 7),
    Sketcher.Constraint("Horizontal", 1, 2, 4, 2),
    Sketcher.Constraint("Horizontal", 3, 2, 6, 2),
    Sketcher.Constraint("Equal", 3, 5),
    Sketcher.Constraint("DistanceX", 1, 1, 1, 2, 25.0),
    Sketcher.Constraint("DistanceY", 0, 2, 0, 1, 7.9),
    Sketcher.Constraint("DistanceY", -1, 1, 0, 2, 2.0),
    Sketcher.Constraint("DistanceX", 1, 2, 4, 2, 85.3),
    Sketcher.Constraint("DistanceX", 0, 2, -1, 1, 144.15),
])
pad10 = doc.addObject("PartDesign::Pad", "Pad009")
body.addObject(pad10)
pad10.Profile = sketch13
pad10.Length = 22

# Sketch on XZ plane
sketch14 = doc.addObject("Sketcher::SketchObject", "Sketch013")
body.addObject(sketch14)
sketch14.AttachmentSupport = (doc.XZ_Plane, [""])
sketch14.MapMode = "FlatFace"
sketch14.AttachmentOffset = App.Placement(Vector(0, 0, -9.9), App.Rotation())
sketch14.addGeometry([
    Part.LineSegment(Vector(-144, 27, 0), Vector(-144, 37, 0)),  # 0
    Part.LineSegment(Vector(-144, 37, 0), Vector(-119, 37, 0)),  # 1
    Part.LineSegment(Vector(-119, 37, 0), Vector(-119, 27, 0)),  # 2
    Part.LineSegment(Vector(-119, 27, 0), Vector(-144, 27, 0)),  # 3
    Part.LineSegment(Vector(-34, 27, 0), Vector(-34, 37, 0)),  # 4
    Part.LineSegment(Vector(-34, 37, 0), Vector(-9, 37, 0)),  # 5
    Part.LineSegment(Vector(-9, 37, 0), Vector(-9, 27, 0)),  # 6
    Part.LineSegment(Vector(-9, 27, 0), Vector(-34, 27, 0)),  # 7
], False)
sketch14.addConstraint([
    Sketcher.Constraint("Coincident", 0, 2, 1, 1),
    Sketcher.Constraint("Coincident", 1, 2, 2, 1),
    Sketcher.Constraint("Coincident", 2, 2, 3, 1),
    Sketcher.Constraint("Coincident", 3, 2, 0, 1),
    Sketcher.Constraint("Coincident", 4, 2, 5, 1),
    Sketcher.Constraint("Coincident", 5, 2, 6, 1),
    Sketcher.Constraint("Coincident", 6, 2, 7, 1),
    Sketcher.Constraint("Coincident", 7, 2, 4, 1),
    Sketcher.Constraint("Vertical", 0),
    Sketcher.Constraint("Horizontal", 1),
    Sketcher.Constraint("Vertical", 2),
    Sketcher.Constraint("Horizontal", 3),
    Sketcher.Constraint("Vertical", 4),
    Sketcher.Constraint("Horizontal", 5),
    Sketcher.Constraint("Vertical", 6),
    Sketcher.Constraint("Horizontal", 7),
    Sketcher.Constraint("Horizontal", 1, 2, 4, 2),
    Sketcher.Constraint("Horizontal", 3, 2, 6, 2),
    Sketcher.Constraint("Equal", 3, 5),
    Sketcher.Constraint("DistanceX", 1, 1, 1, 2, 25.0),
    Sketcher.Constraint("DistanceY", 0, 1, 0, 2, 10.0),
    Sketcher.Constraint("DistanceX", 1, 2, 4, 2, 85.3),
    Sketcher.Constraint("DistanceX", 0, 2, -1, 1, 144.15),
    Sketcher.Constraint("DistanceY", -1, 1, 0, 2, 36.625),
])
pocket4 = doc.addObject("PartDesign::Pocket", "Pocket003")
body.addObject(pocket4)
pocket4.Profile = sketch14
pocket4.Length = 3.9
pocket4.Reversed = True

doc.recompute()
